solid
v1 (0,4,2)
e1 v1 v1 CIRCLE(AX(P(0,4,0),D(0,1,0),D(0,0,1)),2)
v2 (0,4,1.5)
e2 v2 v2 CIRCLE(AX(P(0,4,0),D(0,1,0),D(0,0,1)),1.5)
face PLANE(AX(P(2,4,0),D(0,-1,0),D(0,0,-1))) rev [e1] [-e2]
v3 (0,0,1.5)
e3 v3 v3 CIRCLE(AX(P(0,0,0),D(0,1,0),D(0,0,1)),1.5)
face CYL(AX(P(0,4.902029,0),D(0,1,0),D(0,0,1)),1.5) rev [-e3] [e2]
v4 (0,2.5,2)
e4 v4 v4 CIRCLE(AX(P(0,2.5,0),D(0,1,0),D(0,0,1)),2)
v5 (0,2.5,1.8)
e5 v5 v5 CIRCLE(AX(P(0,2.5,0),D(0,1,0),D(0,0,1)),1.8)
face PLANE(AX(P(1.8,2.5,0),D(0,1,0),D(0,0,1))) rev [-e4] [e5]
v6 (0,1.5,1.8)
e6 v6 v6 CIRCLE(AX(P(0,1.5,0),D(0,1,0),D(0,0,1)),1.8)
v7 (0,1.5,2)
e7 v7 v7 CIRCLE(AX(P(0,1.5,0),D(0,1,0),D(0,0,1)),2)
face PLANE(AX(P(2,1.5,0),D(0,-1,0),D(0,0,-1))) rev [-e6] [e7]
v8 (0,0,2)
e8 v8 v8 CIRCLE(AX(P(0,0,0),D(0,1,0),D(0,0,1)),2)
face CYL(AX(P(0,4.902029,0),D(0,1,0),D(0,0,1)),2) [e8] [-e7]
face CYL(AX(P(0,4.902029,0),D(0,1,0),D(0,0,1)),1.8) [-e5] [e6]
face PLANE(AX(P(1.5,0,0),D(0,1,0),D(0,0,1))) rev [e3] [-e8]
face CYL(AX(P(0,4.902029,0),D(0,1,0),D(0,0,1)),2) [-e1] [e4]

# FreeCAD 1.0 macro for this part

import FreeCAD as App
import Part
import Sketcher

V = App.Vector
Q = App.Units.Quantity

doc = App.newDocument("Part")
body = doc.addObject("PartDesign::Body", "Body")

# Sketch on XY plane
sketch1 = body.newObject("Sketcher::SketchObject", "Sketch")
sketch1.AttachmentSupport = (doc.getObject("XY_Plane"), [""])
sketch1.MapMode = "FlatFace"
sketch1.addGeometry([
    Part.LineSegment(V(1.5, 0, 0), V(2, 0, 0)),  # 0
    Part.LineSegment(V(2, 0, 0), V(2, 1.5, 0)),  # 1
    Part.LineSegment(V(2, 1.5, 0), V(1.8, 1.5, 0)),  # 2
    Part.LineSegment(V(1.8, 1.5, 0), V(1.8, 2.5, 0)),  # 3
    Part.LineSegment(V(1.8, 2.5, 0), V(2, 2.5, 0)),  # 4
    Part.LineSegment(V(2, 2.5, 0), V(2, 4, 0)),  # 5
    Part.LineSegment(V(2, 4, 0), V(1.5, 4, 0)),  # 6
    Part.LineSegment(V(1.5, 4, 0), V(1.5, 0, 0)),  # 7
], False)
sketch1.addConstraint([
    Sketcher.Constraint("Coincident", 0, 2, 1, 1),
    Sketcher.Constraint("Coincident", 1, 2, 2, 1),
    Sketcher.Constraint("Coincident", 2, 2, 3, 1),
    Sketcher.Constraint("Coincident", 3, 2, 4, 1),
    Sketcher.Constraint("Coincident", 4, 2, 5, 1),
    Sketcher.Constraint("Coincident", 5, 2, 6, 1),
    Sketcher.Constraint("Coincident", 6, 2, 7, 1),
    Sketcher.Constraint("Coincident", 7, 2, 0, 1),
    Sketcher.Constraint("Horizontal", 0),
    Sketcher.Constraint("Vertical", 1),
    Sketcher.Constraint("Horizontal", 2),
    Sketcher.Constraint("Vertical", 3),
    Sketcher.Constraint("Horizontal", 4),
    Sketcher.Constraint("Vertical", 5),
    Sketcher.Constraint("Horizontal", 6),
    Sketcher.Constraint("Vertical", 7),
    Sketcher.Constraint("PointOnObject", 0, 2, -1),
    Sketcher.Constraint("Vertical", 1, 2, 4, 2),
    Sketcher.Constraint("Equal", 1, 5),
    Sketcher.Constraint("DistanceY", 3, 1, 3, 2, Q("1 mm")),
    Sketcher.Constraint("DistanceY", 7, 2, 7, 1, Q("4 mm")),
    Sketcher.Constraint("DistanceX", 0, 1, 0, 2, Q("0.5 mm")),
    Sketcher.Constraint("DistanceX", 2, 2, 2, 1, Q("0.2 mm")),
    Sketcher.Constraint("DistanceX", -1, 1, 0, 2, Q("2 mm")),
])
revolution = body.newObject("PartDesign::Revolution", "Revolution")
revolution.Profile = sketch1
revolution.ReferenceAxis = (sketch1, ["V_Axis"])
revolution.Angle = 360

doc.recompute()
